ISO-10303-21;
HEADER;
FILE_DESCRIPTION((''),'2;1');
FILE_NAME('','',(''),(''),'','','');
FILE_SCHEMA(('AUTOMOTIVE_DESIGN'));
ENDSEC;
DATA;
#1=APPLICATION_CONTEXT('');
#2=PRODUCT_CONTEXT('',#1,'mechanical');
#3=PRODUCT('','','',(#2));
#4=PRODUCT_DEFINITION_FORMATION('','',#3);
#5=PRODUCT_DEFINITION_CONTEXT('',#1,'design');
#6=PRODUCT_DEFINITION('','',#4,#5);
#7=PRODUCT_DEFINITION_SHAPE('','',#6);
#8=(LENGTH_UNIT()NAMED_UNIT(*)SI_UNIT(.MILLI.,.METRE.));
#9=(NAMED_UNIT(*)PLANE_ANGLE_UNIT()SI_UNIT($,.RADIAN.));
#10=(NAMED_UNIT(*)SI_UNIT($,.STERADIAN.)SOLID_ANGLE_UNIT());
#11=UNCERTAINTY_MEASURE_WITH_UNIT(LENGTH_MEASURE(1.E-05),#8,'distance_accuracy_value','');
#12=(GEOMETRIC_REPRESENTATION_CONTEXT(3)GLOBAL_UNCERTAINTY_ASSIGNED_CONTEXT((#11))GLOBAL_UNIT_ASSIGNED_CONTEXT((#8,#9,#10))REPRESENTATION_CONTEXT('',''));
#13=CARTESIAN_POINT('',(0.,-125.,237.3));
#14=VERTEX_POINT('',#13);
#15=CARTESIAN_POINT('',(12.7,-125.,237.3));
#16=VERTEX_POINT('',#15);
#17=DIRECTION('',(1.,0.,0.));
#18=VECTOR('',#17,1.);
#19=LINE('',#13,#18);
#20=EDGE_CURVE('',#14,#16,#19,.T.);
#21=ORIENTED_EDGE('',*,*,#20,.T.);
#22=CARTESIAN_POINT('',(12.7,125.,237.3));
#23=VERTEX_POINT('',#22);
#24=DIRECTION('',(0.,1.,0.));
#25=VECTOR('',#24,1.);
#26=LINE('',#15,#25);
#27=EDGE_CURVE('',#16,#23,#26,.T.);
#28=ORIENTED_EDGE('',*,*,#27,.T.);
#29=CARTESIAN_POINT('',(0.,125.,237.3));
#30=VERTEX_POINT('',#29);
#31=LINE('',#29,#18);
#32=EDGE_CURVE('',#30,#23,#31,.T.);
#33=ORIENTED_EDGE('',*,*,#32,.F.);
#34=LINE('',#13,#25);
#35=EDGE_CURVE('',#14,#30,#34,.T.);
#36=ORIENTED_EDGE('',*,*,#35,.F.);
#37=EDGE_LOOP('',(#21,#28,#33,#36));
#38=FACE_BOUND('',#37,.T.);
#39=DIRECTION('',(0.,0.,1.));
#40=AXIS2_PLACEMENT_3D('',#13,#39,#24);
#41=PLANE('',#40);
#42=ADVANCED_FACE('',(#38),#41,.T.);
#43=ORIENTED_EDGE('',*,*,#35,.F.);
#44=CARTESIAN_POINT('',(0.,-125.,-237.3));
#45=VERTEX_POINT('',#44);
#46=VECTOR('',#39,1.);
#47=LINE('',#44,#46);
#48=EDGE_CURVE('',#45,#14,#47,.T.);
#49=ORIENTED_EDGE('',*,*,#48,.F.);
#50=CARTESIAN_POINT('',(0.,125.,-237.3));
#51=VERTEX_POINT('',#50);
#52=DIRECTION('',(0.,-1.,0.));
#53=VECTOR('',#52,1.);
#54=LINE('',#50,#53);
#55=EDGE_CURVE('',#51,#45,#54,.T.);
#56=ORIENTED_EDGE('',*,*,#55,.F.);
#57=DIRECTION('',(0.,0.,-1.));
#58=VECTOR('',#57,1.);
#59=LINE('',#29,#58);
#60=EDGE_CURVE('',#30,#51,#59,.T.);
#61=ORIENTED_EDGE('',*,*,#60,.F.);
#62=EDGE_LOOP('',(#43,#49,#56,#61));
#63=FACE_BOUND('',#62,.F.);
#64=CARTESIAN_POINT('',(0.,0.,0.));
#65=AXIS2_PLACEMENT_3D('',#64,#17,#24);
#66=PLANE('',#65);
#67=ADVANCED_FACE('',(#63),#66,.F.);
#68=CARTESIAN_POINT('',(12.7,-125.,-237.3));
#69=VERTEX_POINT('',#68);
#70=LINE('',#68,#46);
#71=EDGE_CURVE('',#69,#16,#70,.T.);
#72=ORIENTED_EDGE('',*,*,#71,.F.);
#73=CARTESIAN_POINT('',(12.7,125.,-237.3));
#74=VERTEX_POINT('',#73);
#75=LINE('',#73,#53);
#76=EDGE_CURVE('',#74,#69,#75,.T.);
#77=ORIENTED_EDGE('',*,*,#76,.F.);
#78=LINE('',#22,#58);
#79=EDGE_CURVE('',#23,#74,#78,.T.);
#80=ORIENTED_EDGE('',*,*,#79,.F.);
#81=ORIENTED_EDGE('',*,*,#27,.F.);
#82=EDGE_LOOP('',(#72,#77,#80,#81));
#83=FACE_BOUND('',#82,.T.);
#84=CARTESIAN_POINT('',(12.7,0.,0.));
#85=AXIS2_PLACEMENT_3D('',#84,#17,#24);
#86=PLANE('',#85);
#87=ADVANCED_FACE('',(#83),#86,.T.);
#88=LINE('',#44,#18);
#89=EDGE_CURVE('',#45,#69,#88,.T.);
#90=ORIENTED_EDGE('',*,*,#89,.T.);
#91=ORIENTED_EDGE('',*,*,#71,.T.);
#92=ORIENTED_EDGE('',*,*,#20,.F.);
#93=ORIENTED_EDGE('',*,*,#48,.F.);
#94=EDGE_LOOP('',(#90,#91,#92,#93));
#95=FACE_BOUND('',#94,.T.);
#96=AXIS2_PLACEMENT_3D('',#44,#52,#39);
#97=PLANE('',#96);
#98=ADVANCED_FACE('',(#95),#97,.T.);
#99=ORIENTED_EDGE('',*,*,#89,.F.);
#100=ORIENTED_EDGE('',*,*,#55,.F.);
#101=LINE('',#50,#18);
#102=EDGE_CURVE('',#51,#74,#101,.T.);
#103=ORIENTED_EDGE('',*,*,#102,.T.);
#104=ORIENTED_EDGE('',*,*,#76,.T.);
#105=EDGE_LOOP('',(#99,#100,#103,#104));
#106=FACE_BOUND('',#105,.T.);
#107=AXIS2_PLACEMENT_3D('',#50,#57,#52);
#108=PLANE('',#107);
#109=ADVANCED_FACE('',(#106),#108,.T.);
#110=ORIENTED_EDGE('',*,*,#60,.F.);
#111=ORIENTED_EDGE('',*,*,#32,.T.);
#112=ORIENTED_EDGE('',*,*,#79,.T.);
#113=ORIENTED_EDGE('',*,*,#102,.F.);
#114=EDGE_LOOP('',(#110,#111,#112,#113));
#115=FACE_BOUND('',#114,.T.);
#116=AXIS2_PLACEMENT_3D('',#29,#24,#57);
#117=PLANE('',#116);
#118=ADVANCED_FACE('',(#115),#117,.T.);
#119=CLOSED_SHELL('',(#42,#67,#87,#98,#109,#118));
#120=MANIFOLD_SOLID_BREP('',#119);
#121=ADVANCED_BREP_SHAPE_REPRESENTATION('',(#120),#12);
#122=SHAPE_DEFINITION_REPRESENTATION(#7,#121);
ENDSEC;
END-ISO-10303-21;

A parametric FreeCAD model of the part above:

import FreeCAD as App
import Part
import Sketcher
from FreeCAD import Vector


def add_polygon(sketch, points):
    """Adds a closed chain of lines whose ends are joined by coincident constraints."""
    first, n = sketch.GeometryCount, len(points)
    for a, b in zip(points, points[1:] + points[:1]):
        sketch.addGeometry(Part.LineSegment(App.Vector(*a, 0), App.Vector(*b, 0)), False)
    for i in range(n):
        sketch.addConstraint(Sketcher.Constraint("Coincident", first + i, 2, first + (i + 1) % n, 1))

doc = App.newDocument("Part")
body = doc.addObject("PartDesign::Body", "Body")

# Sketch on YZ plane
sketch1 = body.newObject("Sketcher::SketchObject", "Sketch")
sketch1.AttachmentSupport = (doc.getObject("YZ_Plane"), [""])
sketch1.MapMode = "FlatFace"
add_polygon(sketch1, [(125, 237), (-125, 237), (-125, -237), (125, -237)])  # lines 0-3
sketch1.addConstraint([
    Sketcher.Constraint("Horizontal", 0),
    Sketcher.Constraint("Vertical", 1),
    Sketcher.Constraint("Horizontal", 2),
    Sketcher.Constraint("Vertical", 3),
    Sketcher.Constraint("Symmetric", 0, 2, 2, 2, -1, 1),
    Sketcher.Constraint("DistanceX", 0, 2, 0, 1, 250.0),
    Sketcher.Constraint("DistanceY", 1, 2, 1, 1, 474.6),
])
pad1 = body.newObject("PartDesign::Pad", "Pad")
pad1.Profile = sketch1
pad1.Length = 12.7

doc.recompute()
